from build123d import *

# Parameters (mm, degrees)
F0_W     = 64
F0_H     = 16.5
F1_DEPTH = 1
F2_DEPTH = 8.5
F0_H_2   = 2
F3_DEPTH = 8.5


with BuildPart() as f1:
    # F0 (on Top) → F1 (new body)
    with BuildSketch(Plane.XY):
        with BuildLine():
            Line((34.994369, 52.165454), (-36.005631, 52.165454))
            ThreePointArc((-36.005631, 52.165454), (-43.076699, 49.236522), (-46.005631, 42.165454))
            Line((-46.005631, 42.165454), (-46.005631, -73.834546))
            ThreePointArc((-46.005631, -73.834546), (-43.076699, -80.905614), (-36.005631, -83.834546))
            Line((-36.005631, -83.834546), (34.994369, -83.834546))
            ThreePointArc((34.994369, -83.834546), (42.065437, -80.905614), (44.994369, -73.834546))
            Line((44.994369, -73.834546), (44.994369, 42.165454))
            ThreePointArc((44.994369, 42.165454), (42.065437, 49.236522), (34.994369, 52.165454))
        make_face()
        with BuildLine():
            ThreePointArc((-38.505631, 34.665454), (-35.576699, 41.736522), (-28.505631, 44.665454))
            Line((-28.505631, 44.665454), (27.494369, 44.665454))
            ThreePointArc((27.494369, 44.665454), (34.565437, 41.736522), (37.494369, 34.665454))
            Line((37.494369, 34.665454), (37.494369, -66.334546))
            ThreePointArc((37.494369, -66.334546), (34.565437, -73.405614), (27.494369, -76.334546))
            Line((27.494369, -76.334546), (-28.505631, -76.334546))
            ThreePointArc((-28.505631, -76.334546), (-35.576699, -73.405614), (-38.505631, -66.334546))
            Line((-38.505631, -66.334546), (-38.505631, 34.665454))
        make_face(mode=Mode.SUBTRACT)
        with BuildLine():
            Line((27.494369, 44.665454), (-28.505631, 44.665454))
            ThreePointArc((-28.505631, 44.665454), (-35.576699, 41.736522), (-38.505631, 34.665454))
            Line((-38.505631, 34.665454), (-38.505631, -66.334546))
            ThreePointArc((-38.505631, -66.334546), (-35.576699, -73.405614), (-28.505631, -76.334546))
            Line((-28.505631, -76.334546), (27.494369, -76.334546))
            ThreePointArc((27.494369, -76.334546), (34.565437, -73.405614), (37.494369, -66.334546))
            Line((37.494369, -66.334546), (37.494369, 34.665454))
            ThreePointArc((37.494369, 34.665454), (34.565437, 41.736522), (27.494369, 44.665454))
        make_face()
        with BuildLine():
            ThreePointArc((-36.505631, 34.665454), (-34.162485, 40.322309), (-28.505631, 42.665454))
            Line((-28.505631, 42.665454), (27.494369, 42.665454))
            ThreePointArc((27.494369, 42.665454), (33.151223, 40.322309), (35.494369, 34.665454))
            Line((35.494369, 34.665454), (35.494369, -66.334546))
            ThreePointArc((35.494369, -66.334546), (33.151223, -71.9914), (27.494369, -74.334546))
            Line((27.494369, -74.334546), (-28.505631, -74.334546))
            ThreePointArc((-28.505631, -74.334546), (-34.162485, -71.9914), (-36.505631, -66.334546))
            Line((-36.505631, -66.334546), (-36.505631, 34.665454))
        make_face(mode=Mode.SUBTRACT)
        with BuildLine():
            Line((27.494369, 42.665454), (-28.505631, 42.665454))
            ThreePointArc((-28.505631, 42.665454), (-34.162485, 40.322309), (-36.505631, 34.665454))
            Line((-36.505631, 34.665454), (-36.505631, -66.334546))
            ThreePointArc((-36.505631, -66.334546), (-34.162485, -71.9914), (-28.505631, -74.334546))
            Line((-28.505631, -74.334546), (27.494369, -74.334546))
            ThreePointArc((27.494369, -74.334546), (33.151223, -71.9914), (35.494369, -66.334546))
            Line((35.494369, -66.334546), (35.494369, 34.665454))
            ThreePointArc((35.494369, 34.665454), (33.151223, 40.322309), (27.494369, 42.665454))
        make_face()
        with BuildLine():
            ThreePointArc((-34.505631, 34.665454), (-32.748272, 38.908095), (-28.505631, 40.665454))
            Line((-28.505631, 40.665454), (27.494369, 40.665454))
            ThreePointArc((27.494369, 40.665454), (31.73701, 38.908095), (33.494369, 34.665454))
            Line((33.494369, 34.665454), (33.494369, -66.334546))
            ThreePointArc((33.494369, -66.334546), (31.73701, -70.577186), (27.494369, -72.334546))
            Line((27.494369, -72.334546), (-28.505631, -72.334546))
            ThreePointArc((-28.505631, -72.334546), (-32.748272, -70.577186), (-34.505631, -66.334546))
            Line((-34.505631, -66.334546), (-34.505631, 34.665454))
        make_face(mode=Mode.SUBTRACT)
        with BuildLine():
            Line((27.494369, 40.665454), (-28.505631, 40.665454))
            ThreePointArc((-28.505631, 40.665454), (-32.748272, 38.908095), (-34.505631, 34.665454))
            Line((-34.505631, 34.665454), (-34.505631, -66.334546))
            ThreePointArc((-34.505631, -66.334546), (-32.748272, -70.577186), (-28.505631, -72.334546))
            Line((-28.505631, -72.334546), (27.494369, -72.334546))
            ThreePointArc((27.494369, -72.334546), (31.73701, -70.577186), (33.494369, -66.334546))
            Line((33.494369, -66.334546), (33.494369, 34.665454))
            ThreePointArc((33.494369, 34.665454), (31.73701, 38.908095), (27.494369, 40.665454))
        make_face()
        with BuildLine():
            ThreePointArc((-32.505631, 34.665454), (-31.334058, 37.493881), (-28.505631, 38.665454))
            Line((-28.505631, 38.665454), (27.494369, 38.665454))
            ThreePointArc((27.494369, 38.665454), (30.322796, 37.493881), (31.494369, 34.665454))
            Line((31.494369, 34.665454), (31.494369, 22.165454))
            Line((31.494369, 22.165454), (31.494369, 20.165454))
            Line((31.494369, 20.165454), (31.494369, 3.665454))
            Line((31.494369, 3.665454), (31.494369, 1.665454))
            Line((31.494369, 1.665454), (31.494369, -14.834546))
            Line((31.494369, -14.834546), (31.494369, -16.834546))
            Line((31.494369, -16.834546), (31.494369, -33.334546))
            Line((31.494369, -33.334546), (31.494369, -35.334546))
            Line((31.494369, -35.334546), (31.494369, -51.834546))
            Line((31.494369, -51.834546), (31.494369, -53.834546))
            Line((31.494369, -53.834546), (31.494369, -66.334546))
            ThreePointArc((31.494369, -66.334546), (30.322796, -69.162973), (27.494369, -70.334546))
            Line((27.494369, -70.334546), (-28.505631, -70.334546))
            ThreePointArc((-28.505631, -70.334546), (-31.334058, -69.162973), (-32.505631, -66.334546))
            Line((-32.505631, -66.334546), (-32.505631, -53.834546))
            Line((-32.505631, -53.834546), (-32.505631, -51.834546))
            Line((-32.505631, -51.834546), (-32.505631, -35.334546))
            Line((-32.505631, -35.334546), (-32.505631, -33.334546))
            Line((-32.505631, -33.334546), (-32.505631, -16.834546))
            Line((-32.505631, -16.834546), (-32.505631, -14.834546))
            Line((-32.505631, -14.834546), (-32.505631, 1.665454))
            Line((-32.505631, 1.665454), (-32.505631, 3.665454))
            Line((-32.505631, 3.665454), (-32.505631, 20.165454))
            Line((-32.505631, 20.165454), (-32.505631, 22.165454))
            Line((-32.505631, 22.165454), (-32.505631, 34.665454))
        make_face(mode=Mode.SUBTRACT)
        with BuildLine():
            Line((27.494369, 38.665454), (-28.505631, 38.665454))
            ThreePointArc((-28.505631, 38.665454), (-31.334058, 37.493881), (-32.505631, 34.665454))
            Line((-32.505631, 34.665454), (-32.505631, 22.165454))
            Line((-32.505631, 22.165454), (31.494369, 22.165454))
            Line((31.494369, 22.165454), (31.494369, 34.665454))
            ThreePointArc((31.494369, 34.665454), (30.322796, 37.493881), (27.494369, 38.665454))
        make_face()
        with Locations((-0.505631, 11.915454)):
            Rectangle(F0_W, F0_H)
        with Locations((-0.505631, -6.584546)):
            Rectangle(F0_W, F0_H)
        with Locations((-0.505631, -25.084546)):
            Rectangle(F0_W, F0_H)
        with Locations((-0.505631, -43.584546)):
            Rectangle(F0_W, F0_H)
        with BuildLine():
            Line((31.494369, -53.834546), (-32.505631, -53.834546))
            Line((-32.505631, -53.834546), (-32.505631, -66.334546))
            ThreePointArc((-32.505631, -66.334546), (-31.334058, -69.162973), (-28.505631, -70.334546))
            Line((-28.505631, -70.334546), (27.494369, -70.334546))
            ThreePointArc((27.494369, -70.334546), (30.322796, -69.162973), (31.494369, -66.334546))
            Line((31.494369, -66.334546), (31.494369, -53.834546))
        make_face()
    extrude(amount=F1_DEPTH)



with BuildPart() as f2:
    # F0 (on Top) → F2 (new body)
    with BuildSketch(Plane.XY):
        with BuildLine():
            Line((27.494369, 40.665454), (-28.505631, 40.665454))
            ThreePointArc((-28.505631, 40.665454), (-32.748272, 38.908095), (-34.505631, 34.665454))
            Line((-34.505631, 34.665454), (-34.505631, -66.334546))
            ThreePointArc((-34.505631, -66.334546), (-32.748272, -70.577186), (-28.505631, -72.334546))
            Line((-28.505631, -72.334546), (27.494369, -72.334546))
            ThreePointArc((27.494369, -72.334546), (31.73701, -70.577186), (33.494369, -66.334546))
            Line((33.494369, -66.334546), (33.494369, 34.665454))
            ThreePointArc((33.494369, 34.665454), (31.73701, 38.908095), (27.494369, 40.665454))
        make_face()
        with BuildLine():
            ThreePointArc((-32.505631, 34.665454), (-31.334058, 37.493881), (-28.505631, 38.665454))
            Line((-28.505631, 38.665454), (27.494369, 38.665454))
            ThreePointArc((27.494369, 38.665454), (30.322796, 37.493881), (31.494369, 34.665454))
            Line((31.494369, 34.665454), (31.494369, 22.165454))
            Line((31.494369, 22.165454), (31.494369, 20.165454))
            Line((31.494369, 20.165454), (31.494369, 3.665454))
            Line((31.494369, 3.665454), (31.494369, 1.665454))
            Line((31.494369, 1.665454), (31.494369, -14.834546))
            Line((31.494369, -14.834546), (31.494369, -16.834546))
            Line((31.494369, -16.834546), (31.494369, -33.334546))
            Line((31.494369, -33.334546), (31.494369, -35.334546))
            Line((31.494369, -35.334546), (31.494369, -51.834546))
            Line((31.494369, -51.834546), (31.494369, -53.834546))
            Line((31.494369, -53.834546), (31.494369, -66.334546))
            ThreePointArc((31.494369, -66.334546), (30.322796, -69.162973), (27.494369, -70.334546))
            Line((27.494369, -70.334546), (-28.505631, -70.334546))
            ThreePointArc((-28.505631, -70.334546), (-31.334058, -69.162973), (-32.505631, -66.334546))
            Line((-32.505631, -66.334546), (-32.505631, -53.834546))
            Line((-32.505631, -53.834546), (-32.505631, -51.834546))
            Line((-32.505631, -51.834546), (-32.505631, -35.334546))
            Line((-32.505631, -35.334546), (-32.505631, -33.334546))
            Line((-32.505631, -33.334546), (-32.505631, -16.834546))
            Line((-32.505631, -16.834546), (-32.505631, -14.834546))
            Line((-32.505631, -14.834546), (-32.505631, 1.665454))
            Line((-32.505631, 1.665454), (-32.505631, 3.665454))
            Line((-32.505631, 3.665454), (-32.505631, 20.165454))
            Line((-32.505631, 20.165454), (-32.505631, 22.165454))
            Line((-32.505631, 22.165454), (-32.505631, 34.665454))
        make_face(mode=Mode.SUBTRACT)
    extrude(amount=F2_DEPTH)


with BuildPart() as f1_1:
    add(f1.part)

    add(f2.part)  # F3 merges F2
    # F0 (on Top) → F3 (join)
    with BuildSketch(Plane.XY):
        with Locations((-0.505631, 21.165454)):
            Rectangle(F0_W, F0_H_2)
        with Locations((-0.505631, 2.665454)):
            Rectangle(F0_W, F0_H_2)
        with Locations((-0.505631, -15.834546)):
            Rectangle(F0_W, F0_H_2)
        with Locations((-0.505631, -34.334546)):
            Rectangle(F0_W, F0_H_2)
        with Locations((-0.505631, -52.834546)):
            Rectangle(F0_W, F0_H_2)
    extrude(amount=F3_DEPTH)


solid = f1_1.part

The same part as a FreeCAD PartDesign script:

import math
import FreeCAD as App
import Part
import Sketcher
Q = App.Units.Quantity

doc = App.newDocument("Part")
params = doc.addObject("Spreadsheet::Sheet", "Params")
for row, (alias, value) in enumerate([
    ("sketch1_radius", "9.999999 mm"),
    ("sketch1_width", "71 mm"),
    ("sketch1_width2", "64 mm"),
    ("sketch1_height", "116 mm"),
    ("sketch1_height2", "2 mm"),
    ("pad1_length", "1 mm"),
    ("sketch2_radius", "5.999999 mm"),
    ("sketch2_radius2", "4 mm"),
    ("sketch2_width", "56 mm"),
    ("sketch2_height", "101 mm"),
    ("pad2_length", "8.5 mm"),
    ("sketch3_width", "64 mm"),
    ("sketch3_height", "2 mm"),
    ("pad3_length", "8.5 mm"),
], start=1):
    params.set(f"A{row}", alias)
    params.set(f"B{row}", "=" + value)
    params.setAlias(f"B{row}", alias)

body = doc.addObject("PartDesign::Body", "Body")

# Sketch on XY plane
sketch1 = doc.addObject("Sketcher::SketchObject", "Sketch")
body.addObject(sketch1)
sketch1.AttachmentSupport = (doc.XY_Plane, [""])
sketch1.MapMode = "FlatFace"
sketch1.addGeometry(Part.LineSegment(App.Vector(34.994369, 52.165454, 0), App.Vector(-36.005631, 52.165454, 0)), False)
sketch1.addGeometry(Part.ArcOfCircle(Part.Circle(App.Vector(-36.005632, 42.165455, 0), App.Vector(0, 0, 1), 9.999999), math.radians(89.999996), math.radians(180.000004)), False)
sketch1.addGeometry(Part.LineSegment(App.Vector(-46.005631, 42.165454, 0), App.Vector(-46.005631, -73.834546, 0)), False)
sketch1.addGeometry(Part.ArcOfCircle(Part.Circle(App.Vector(-36.005632, -73.834547, 0), App.Vector(0, 0, 1), 9.999999), math.radians(179.999996), math.radians(270.000004)), False)
sketch1.addGeometry(Part.LineSegment(App.Vector(-36.005631, -83.834546, 0), App.Vector(34.994369, -83.834546, 0)), False)
sketch1.addGeometry(Part.ArcOfCircle(Part.Circle(App.Vector(34.99437, -73.834547, 0), App.Vector(0, 0, 1), 9.999999), math.radians(-90.000004), math.radians(0.000004)), False)
sketch1.addGeometry(Part.LineSegment(App.Vector(44.994369, -73.834546, 0), App.Vector(44.994369, 42.165454, 0)), False)
sketch1.addGeometry(Part.ArcOfCircle(Part.Circle(App.Vector(34.99437, 42.165455, 0), App.Vector(0, 0, 1), 9.999999), math.radians(-0.000004), math.radians(90.000004)), False)
sketch1.addGeometry(Part.LineSegment(App.Vector(-32.505631, -53.834546, 0), App.Vector(-32.505631, -51.834546, 0)), False)
sketch1.addGeometry(Part.LineSegment(App.Vector(-32.505631, -51.834546, 0), App.Vector(31.494369, -51.834546, 0)), False)
sketch1.addGeometry(Part.LineSegment(App.Vector(31.494369, -51.834546, 0), App.Vector(31.494369, -53.834546, 0)), False)
sketch1.addGeometry(Part.LineSegment(App.Vector(31.494369, -53.834546, 0), App.Vector(-32.505631, -53.834546, 0)), False)
sketch1.addGeometry(Part.LineSegment(App.Vector(-32.505631, -35.334546, 0), App.Vector(-32.505631, -33.334546, 0)), False)
sketch1.addGeometry(Part.LineSegment(App.Vector(-32.505631, -33.334546, 0), App.Vector(31.494369, -33.334546, 0)), False)
sketch1.addGeometry(Part.LineSegment(App.Vector(31.494369, -33.334546, 0), App.Vector(31.494369, -35.334546, 0)), False)
sketch1.addGeometry(Part.LineSegment(App.Vector(31.494369, -35.334546, 0), App.Vector(-32.505631, -35.334546, 0)), False)
sketch1.addGeometry(Part.LineSegment(App.Vector(-32.505631, -16.834546, 0), App.Vector(-32.505631, -14.834546, 0)), False)
sketch1.addGeometry(Part.LineSegment(App.Vector(-32.505631, -14.834546, 0), App.Vector(31.494369, -14.834546, 0)), False)
sketch1.addGeometry(Part.LineSegment(App.Vector(31.494369, -14.834546, 0), App.Vector(31.494369, -16.834546, 0)), False)
sketch1.addGeometry(Part.LineSegment(App.Vector(31.494369, -16.834546, 0), App.Vector(-32.505631, -16.834546, 0)), False)
sketch1.addGeometry(Part.LineSegment(App.Vector(-32.505631, 1.665454, 0), App.Vector(-32.505631, 3.665454, 0)), False)
sketch1.addGeometry(Part.LineSegment(App.Vector(-32.505631, 3.665454, 0), App.Vector(31.494369, 3.665454, 0)), False)
sketch1.addGeometry(Part.LineSegment(App.Vector(31.494369, 3.665454, 0), App.Vector(31.494369, 1.665454, 0)), False)
sketch1.addGeometry(Part.LineSegment(App.Vector(31.494369, 1.665454, 0), App.Vector(-32.505631, 1.665454, 0)), False)
sketch1.addGeometry(Part.LineSegment(App.Vector(-32.505631, 20.165454, 0), App.Vector(-32.505631, 22.165454, 0)), False)
sketch1.addGeometry(Part.LineSegment(App.Vector(-32.505631, 22.165454, 0), App.Vector(31.494369, 22.165454, 0)), False)
sketch1.addGeometry(Part.LineSegment(App.Vector(31.494369, 22.165454, 0), App.Vector(31.494369, 20.165454, 0)), False)
sketch1.addGeometry(Part.LineSegment(App.Vector(31.494369, 20.165454, 0), App.Vector(-32.505631, 20.165454, 0)), False)
sketch1.addConstraint(Sketcher.Constraint("Tangent", 0, 2, 1, 1))
sketch1.addConstraint(Sketcher.Constraint("Tangent", 1, 2, 2, 1))
sketch1.addConstraint(Sketcher.Constraint("Tangent", 2, 2, 3, 1))
sketch1.addConstraint(Sketcher.Constraint("Tangent", 3, 2, 4, 1))
sketch1.addConstraint(Sketcher.Constraint("Tangent", 4, 2, 5, 1))
sketch1.addConstraint(Sketcher.Constraint("Tangent", 5, 2, 6, 1))
sketch1.addConstraint(Sketcher.Constraint("Tangent", 6, 2, 7, 1))
sketch1.addConstraint(Sketcher.Constraint("Tangent", 7, 2, 0, 1))
sketch1.addConstraint(Sketcher.Constraint("Coincident", 8, 2, 9, 1))
sketch1.addConstraint(Sketcher.Constraint("Coincident", 9, 2, 10, 1))
sketch1.addConstraint(Sketcher.Constraint("Coincident", 10, 2, 11, 1))
sketch1.addConstraint(Sketcher.Constraint("Coincident", 11, 2, 8, 1))
sketch1.addConstraint(Sketcher.Constraint("Coincident", 12, 2, 13, 1))
sketch1.addConstraint(Sketcher.Constraint("Coincident", 13, 2, 14, 1))
sketch1.addConstraint(Sketcher.Constraint("Coincident", 14, 2, 15, 1))
sketch1.addConstraint(Sketcher.Constraint("Coincident", 15, 2, 12, 1))
sketch1.addConstraint(Sketcher.Constraint("Coincident", 16, 2, 17, 1))
sketch1.addConstraint(Sketcher.Constraint("Coincident", 17, 2, 18, 1))
sketch1.addConstraint(Sketcher.Constraint("Coincident", 18, 2, 19, 1))
sketch1.addConstraint(Sketcher.Constraint("Coincident", 19, 2, 16, 1))
sketch1.addConstraint(Sketcher.Constraint("Coincident", 20, 2, 21, 1))
sketch1.addConstraint(Sketcher.Constraint("Coincident", 21, 2, 22, 1))
sketch1.addConstraint(Sketcher.Constraint("Coincident", 22, 2, 23, 1))
sketch1.addConstraint(Sketcher.Constraint("Coincident", 23, 2, 20, 1))
sketch1.addConstraint(Sketcher.Constraint("Coincident", 24, 2, 25, 1))
sketch1.addConstraint(Sketcher.Constraint("Coincident", 25, 2, 26, 1))
sketch1.addConstraint(Sketcher.Constraint("Coincident", 26, 2, 27, 1))
sketch1.addConstraint(Sketcher.Constraint("Coincident", 27, 2, 24, 1))
sketch1.addConstraint(Sketcher.Constraint("Horizontal", 0))
sketch1.addConstraint(Sketcher.Constraint("Vertical", 2))
sketch1.addConstraint(Sketcher.Constraint("Horizontal", 4))
sketch1.addConstraint(Sketcher.Constraint("Vertical", 6))
sketch1.addConstraint(Sketcher.Constraint("Vertical", 8))
sketch1.addConstraint(Sketcher.Constraint("Horizontal", 9))
sketch1.addConstraint(Sketcher.Constraint("Vertical", 10))
sketch1.addConstraint(Sketcher.Constraint("Horizontal", 11))
sketch1.addConstraint(Sketcher.Constraint("Vertical", 12))
sketch1.addConstraint(Sketcher.Constraint("Horizontal", 13))
sketch1.addConstraint(Sketcher.Constraint("Vertical", 14))
sketch1.addConstraint(Sketcher.Constraint("Horizontal", 15))
sketch1.addConstraint(Sketcher.Constraint("Vertical", 16))
sketch1.addConstraint(Sketcher.Constraint("Horizontal", 17))
sketch1.addConstraint(Sketcher.Constraint("Vertical", 18))
sketch1.addConstraint(Sketcher.Constraint("Horizontal", 19))
sketch1.addConstraint(Sketcher.Constraint("Vertical", 20))
sketch1.addConstraint(Sketcher.Constraint("Horizontal", 21))
sketch1.addConstraint(Sketcher.Constraint("Vertical", 22))
sketch1.addConstraint(Sketcher.Constraint("Horizontal", 23))
sketch1.addConstraint(Sketcher.Constraint("Vertical", 24))
sketch1.addConstraint(Sketcher.Constraint("Horizontal", 25))
sketch1.addConstraint(Sketcher.Constraint("Vertical", 26))
sketch1.addConstraint(Sketcher.Constraint("Horizontal", 27))
sketch1.addConstraint(Sketcher.Constraint("Equal", 1, 3))
sketch1.addConstraint(Sketcher.Constraint("Equal", 3, 5))
sketch1.addConstraint(Sketcher.Constraint("Equal", 5, 7))
sketch1.addConstraint(Sketcher.Constraint("Vertical", 11, 2, 12, 2))
sketch1.addConstraint(Sketcher.Constraint("Vertical", 10, 2, 13, 2))
sketch1.addConstraint(Sketcher.Constraint("Vertical", 15, 2, 16, 2))
sketch1.addConstraint(Sketcher.Constraint("Vertical", 14, 2, 17, 2))
sketch1.addConstraint(Sketcher.Constraint("Vertical", 19, 2, 20, 2))
sketch1.addConstraint(Sketcher.Constraint("Vertical", 18, 2, 21, 2))
sketch1.addConstraint(Sketcher.Constraint("Vertical", 23, 2, 24, 2))
sketch1.addConstraint(Sketcher.Constraint("Vertical", 22, 2, 25, 2))
sketch1.addConstraint(Sketcher.Constraint("Equal", 10, 12))
sketch1.addConstraint(Sketcher.Constraint("Equal", 14, 16))
sketch1.addConstraint(Sketcher.Constraint("Equal", 18, 20))
sketch1.addConstraint(Sketcher.Constraint("Equal", 22, 24))
sketch1.addConstraint(Sketcher.Constraint("Radius", 1, Q("9.999999 mm")))
sketch1.addConstraint(Sketcher.Constraint("DistanceX", 0, 2, 0, 1, Q("71 mm")))
sketch1.addConstraint(Sketcher.Constraint("DistanceX", 9, 1, 9, 2, Q("64 mm")))
sketch1.addConstraint(Sketcher.Constraint("DistanceY", 2, 2, 2, 1, Q("116 mm")))
sketch1.addConstraint(Sketcher.Constraint("DistanceY", 8, 1, 8, 2, Q("2 mm")))
sketch1.addConstraint(Sketcher.Constraint("DistanceY", 3, 3, 8, 2, Q("22.000001 mm")))
sketch1.addConstraint(Sketcher.Constraint("DistanceY", 8, 2, 16, 2, Q("37 mm")))
sketch1.addConstraint(Sketcher.Constraint("DistanceY", 12, 2, 20, 2, Q("37 mm")))
sketch1.addConstraint(Sketcher.Constraint("DistanceY", 24, 2, 1, 3, Q("20.000001 mm")))
sketch1.addConstraint(Sketcher.Constraint("DistanceX", 3, 3, 8, 2, Q("3.500001 mm")))
sketch1.addConstraint(Sketcher.Constraint("DistanceY", 8, 2, 12, 2, Q("18.5 mm")))
sketch1.addConstraint(Sketcher.Constraint("DistanceX", 1, 3, -1, 1, Q("36.005632 mm")))
sketch1.addConstraint(Sketcher.Constraint("DistanceY", -1, 1, 1, 3, Q("42.165455 mm")))
sketch1.setExpression("Constraints[67]", "Params.sketch1_radius")
sketch1.setExpression("Constraints[68]", "Params.sketch1_width")
sketch1.setExpression("Constraints[69]", "Params.sketch1_width2")
sketch1.setExpression("Constraints[70]", "Params.sketch1_height")
sketch1.setExpression("Constraints[71]", "Params.sketch1_height2")
pad1 = doc.addObject("PartDesign::Pad", "Pad")
body.addObject(pad1)
pad1.Profile = sketch1
pad1.setExpression("Length", "Params.pad1_length")
body2 = doc.addObject("PartDesign::Body", "Body001")

# Sketch on XY plane
sketch2 = doc.addObject("Sketcher::SketchObject", "Sketch001")
body2.addObject(sketch2)
sketch2.AttachmentSupport = (doc.getObject("XY_Plane001"), [""])
sketch2.MapMode = "FlatFace"
sketch2.addGeometry(Part.LineSegment(App.Vector(27.494369, 40.665454, 0), App.Vector(-28.505631, 40.665454, 0)), False)
sketch2.addGeometry(Part.ArcOfCircle(Part.Circle(App.Vector(-28.505632, 34.665455, 0), App.Vector(0, 0, 1), 5.999999), math.radians(89.99999), math.radians(180.00001)), False)
sketch2.addGeometry(Part.LineSegment(App.Vector(-34.505631, 34.665454, 0), App.Vector(-34.505631, -66.334546, 0)), False)
sketch2.addGeometry(Part.ArcOfCircle(Part.Circle(App.Vector(-28.50563, -66.334545, 0), App.Vector(0, 0, 1), 6.000001), math.radians(-179.999994), math.radians(-90.000006)), False)
sketch2.addGeometry(Part.LineSegment(App.Vector(-28.505631, -72.334546, 0), App.Vector(27.494369, -72.334546, 0)), False)
sketch2.addGeometry(Part.ArcOfCircle(Part.Circle(App.Vector(27.494368, -66.334545, 0), App.Vector(0, 0, 1), 6.000001), math.radians(-89.999994), math.radians(-0.000006)), False)
sketch2.addGeometry(Part.LineSegment(App.Vector(33.494369, -66.334546, 0), App.Vector(33.494369, 34.665454, 0)), False)
sketch2.addGeometry(Part.ArcOfCircle(Part.Circle(App.Vector(27.49437, 34.665455, 0), App.Vector(0, 0, 1), 5.999999), math.radians(-0.00001), math.radians(90.00001)), False)
sketch2.addGeometry(Part.LineSegment(App.Vector(-32.505631, -66.334546, 0), App.Vector(-32.505631, 34.665454, 0)), False)
sketch2.addGeometry(Part.ArcOfCircle(Part.Circle(App.Vector(-28.505631, 34.665454, 0), App.Vector(0, 0, 1), 4), math.radians(90.000006), math.radians(179.999994)), False)
sketch2.addGeometry(Part.LineSegment(App.Vector(-28.505631, 38.665454, 0), App.Vector(27.494369, 38.665454, 0)), False)
sketch2.addGeometry(Part.ArcOfCircle(Part.Circle(App.Vector(27.494369, 34.665454, 0), App.Vector(0, 0, 1), 4), math.radians(0.000006), math.radians(89.999994)), False)
sketch2.addGeometry(Part.LineSegment(App.Vector(31.494369, 34.665454, 0), App.Vector(31.494369, -66.334546, 0)), False)
sketch2.addGeometry(Part.ArcOfCircle(Part.Circle(App.Vector(27.494369, -66.334546, 0), App.Vector(0, 0, 1), 4), math.radians(-89.999994), math.radians(-0.000006)), False)
sketch2.addGeometry(Part.LineSegment(App.Vector(27.494369, -70.334546, 0), App.Vector(-28.505631, -70.334546, 0)), False)
sketch2.addGeometry(Part.ArcOfCircle(Part.Circle(App.Vector(-28.505631, -66.334546, 0), App.Vector(0, 0, 1), 4), math.radians(-179.999994), math.radians(-90.000006)), False)
sketch2.addConstraint(Sketcher.Constraint("Tangent", 0, 2, 1, 1))
sketch2.addConstraint(Sketcher.Constraint("Tangent", 1, 2, 2, 1))
sketch2.addConstraint(Sketcher.Constraint("Tangent", 2, 2, 3, 1))
sketch2.addConstraint(Sketcher.Constraint("Tangent", 3, 2, 4, 1))
sketch2.addConstraint(Sketcher.Constraint("Tangent", 4, 2, 5, 1))
sketch2.addConstraint(Sketcher.Constraint("Tangent", 5, 2, 6, 1))
sketch2.addConstraint(Sketcher.Constraint("Tangent", 6, 2, 7, 1))
sketch2.addConstraint(Sketcher.Constraint("Tangent", 7, 2, 0, 1))
sketch2.addConstraint(Sketcher.Constraint("Tangent", 8, 2, 9, 2))
sketch2.addConstraint(Sketcher.Constraint("Tangent", 9, 1, 10, 1))
sketch2.addConstraint(Sketcher.Constraint("Tangent", 10, 2, 11, 2))
sketch2.addConstraint(Sketcher.Constraint("Tangent", 11, 1, 12, 1))
sketch2.addConstraint(Sketcher.Constraint("Tangent", 12, 2, 13, 2))
sketch2.addConstraint(Sketcher.Constraint("Tangent", 13, 1, 14, 1))
sketch2.addConstraint(Sketcher.Constraint("Tangent", 14, 2, 15, 2))
sketch2.addConstraint(Sketcher.Constraint("Tangent", 15, 1, 8, 1))
sketch2.addConstraint(Sketcher.Constraint("Horizontal", 0))
sketch2.addConstraint(Sketcher.Constraint("Vertical", 2))
sketch2.addConstraint(Sketcher.Constraint("Horizontal", 4))
sketch2.addConstraint(Sketcher.Constraint("Vertical", 6))
sketch2.addConstraint(Sketcher.Constraint("Vertical", 8))
sketch2.addConstraint(Sketcher.Constraint("Horizontal", 10))
sketch2.addConstraint(Sketcher.Constraint("Vertical", 12))
sketch2.addConstraint(Sketcher.Constraint("Horizontal", 14))
sketch2.addConstraint(Sketcher.Constraint("Coincident", 9, 3, 1, 3))
sketch2.addConstraint(Sketcher.Constraint("Coincident", 11, 3, 7, 3))
sketch2.addConstraint(Sketcher.Constraint("Coincident", 13, 3, 5, 3))
sketch2.addConstraint(Sketcher.Constraint("Equal", 1, 3))
sketch2.addConstraint(Sketcher.Constraint("Equal", 3, 5))
sketch2.addConstraint(Sketcher.Constraint("Equal", 5, 7))
sketch2.addConstraint(Sketcher.Constraint("Equal", 13, 15))
sketch2.addConstraint(Sketcher.Constraint("Radius", 1, Q("5.999999 mm")))
sketch2.addConstraint(Sketcher.Constraint("Radius", 9, Q("4 mm")))
sketch2.addConstraint(Sketcher.Constraint("DistanceX", 0, 2, 0, 1, Q("56 mm")))
sketch2.addConstraint(Sketcher.Constraint("DistanceY", 2, 2, 2, 1, Q("101 mm")))
sketch2.addConstraint(Sketcher.Constraint("DistanceX", 3, 3, -1, 1, Q("28.50563 mm")))
sketch2.addConstraint(Sketcher.Constraint("DistanceY", -1, 1, 1, 3, Q("34.665455 mm")))
sketch2.setExpression("Constraints[31]", "Params.sketch2_radius")
sketch2.setExpression("Constraints[32]", "Params.sketch2_radius2")
sketch2.setExpression("Constraints[33]", "Params.sketch2_width")
sketch2.setExpression("Constraints[34]", "Params.sketch2_height")
pad2 = doc.addObject("PartDesign::Pad", "Pad001")
body2.addObject(pad2)
pad2.Profile = sketch2
pad2.setExpression("Length", "Params.pad2_length")
doc.recompute()

boolean = doc.addObject("PartDesign::Boolean", "Boolean")
body.addObject(boolean)
boolean.Type = "Fuse"
boolean.addObjects([body2])

# Sketch on XY plane
sketch3 = doc.addObject("Sketcher::SketchObject", "Sketch002")
body.addObject(sketch3)
sketch3.AttachmentSupport = (doc.XY_Plane, [""])
sketch3.MapMode = "FlatFace"
sketch3.addGeometry(Part.LineSegment(App.Vector(-32.505631, 22.165454, 0), App.Vector(-32.505631, 20.165454, 0)), False)
sketch3.addGeometry(Part.LineSegment(App.Vector(-32.505631, 20.165454, 0), App.Vector(31.494369, 20.165454, 0)), False)
sketch3.addGeometry(Part.LineSegment(App.Vector(31.494369, 20.165454, 0), App.Vector(31.494369, 22.165454, 0)), False)
sketch3.addGeometry(Part.LineSegment(App.Vector(31.494369, 22.165454, 0), App.Vector(-32.505631, 22.165454, 0)), False)
sketch3.addGeometry(Part.LineSegment(App.Vector(-32.505631, 3.665454, 0), App.Vector(-32.505631, 1.665454, 0)), False)
sketch3.addGeometry(Part.LineSegment(App.Vector(-32.505631, 1.665454, 0), App.Vector(31.494369, 1.665454, 0)), False)
sketch3.addGeometry(Part.LineSegment(App.Vector(31.494369, 1.665454, 0), App.Vector(31.494369, 3.665454, 0)), False)
sketch3.addGeometry(Part.LineSegment(App.Vector(31.494369, 3.665454, 0), App.Vector(-32.505631, 3.665454, 0)), False)
sketch3.addGeometry(Part.LineSegment(App.Vector(-32.505631, -14.834546, 0), App.Vector(-32.505631, -16.834546, 0)), False)
sketch3.addGeometry(Part.LineSegment(App.Vector(-32.505631, -16.834546, 0), App.Vector(31.494369, -16.834546, 0)), False)
sketch3.addGeometry(Part.LineSegment(App.Vector(31.494369, -16.834546, 0), App.Vector(31.494369, -14.834546, 0)), False)
sketch3.addGeometry(Part.LineSegment(App.Vector(31.494369, -14.834546, 0), App.Vector(-32.505631, -14.834546, 0)), False)
sketch3.addGeometry(Part.LineSegment(App.Vector(-32.505631, -33.334546, 0), App.Vector(-32.505631, -35.334546, 0)), False)
sketch3.addGeometry(Part.LineSegment(App.Vector(-32.505631, -35.334546, 0), App.Vector(31.494369, -35.334546, 0)), False)
sketch3.addGeometry(Part.LineSegment(App.Vector(31.494369, -35.334546, 0), App.Vector(31.494369, -33.334546, 0)), False)
sketch3.addGeometry(Part.LineSegment(App.Vector(31.494369, -33.334546, 0), App.Vector(-32.505631, -33.334546, 0)), False)
sketch3.addGeometry(Part.LineSegment(App.Vector(-32.505631, -51.834546, 0), App.Vector(-32.505631, -53.834546, 0)), False)
sketch3.addGeometry(Part.LineSegment(App.Vector(-32.505631, -53.834546, 0), App.Vector(31.494369, -53.834546, 0)), False)
sketch3.addGeometry(Part.LineSegment(App.Vector(31.494369, -53.834546, 0), App.Vector(31.494369, -51.834546, 0)), False)
sketch3.addGeometry(Part.LineSegment(App.Vector(31.494369, -51.834546, 0), App.Vector(-32.505631, -51.834546, 0)), False)
sketch3.addConstraint(Sketcher.Constraint("Coincident", 0, 2, 1, 1))
sketch3.addConstraint(Sketcher.Constraint("Coincident", 1, 2, 2, 1))
sketch3.addConstraint(Sketcher.Constraint("Coincident", 2, 2, 3, 1))
sketch3.addConstraint(Sketcher.Constraint("Coincident", 3, 2, 0, 1))
sketch3.addConstraint(Sketcher.Constraint("Coincident", 4, 2, 5, 1))
sketch3.addConstraint(Sketcher.Constraint("Coincident", 5, 2, 6, 1))
sketch3.addConstraint(Sketcher.Constraint("Coincident", 6, 2, 7, 1))
sketch3.addConstraint(Sketcher.Constraint("Coincident", 7, 2, 4, 1))
sketch3.addConstraint(Sketcher.Constraint("Coincident", 8, 2, 9, 1))
sketch3.addConstraint(Sketcher.Constraint("Coincident", 9, 2, 10, 1))
sketch3.addConstraint(Sketcher.Constraint("Coincident", 10, 2, 11, 1))
sketch3.addConstraint(Sketcher.Constraint("Coincident", 11, 2, 8, 1))
sketch3.addConstraint(Sketcher.Constraint("Coincident", 12, 2, 13, 1))
sketch3.addConstraint(Sketcher.Constraint("Coincident", 13, 2, 14, 1))
sketch3.addConstraint(Sketcher.Constraint("Coincident", 14, 2, 15, 1))
sketch3.addConstraint(Sketcher.Constraint("Coincident", 15, 2, 12, 1))
sketch3.addConstraint(Sketcher.Constraint("Coincident", 16, 2, 17, 1))
sketch3.addConstraint(Sketcher.Constraint("Coincident", 17, 2, 18, 1))
sketch3.addConstraint(Sketcher.Constraint("Coincident", 18, 2, 19, 1))
sketch3.addConstraint(Sketcher.Constraint("Coincident", 19, 2, 16, 1))
sketch3.addConstraint(Sketcher.Constraint("Vertical", 0))
sketch3.addConstraint(Sketcher.Constraint("Horizontal", 1))
sketch3.addConstraint(Sketcher.Constraint("Vertical", 2))
sketch3.addConstraint(Sketcher.Constraint("Horizontal", 3))
sketch3.addConstraint(Sketcher.Constraint("Vertical", 4))
sketch3.addConstraint(Sketcher.Constraint("Horizontal", 5))
sketch3.addConstraint(Sketcher.Constraint("Vertical", 6))
sketch3.addConstraint(Sketcher.Constraint("Horizontal", 7))
sketch3.addConstraint(Sketcher.Constraint("Vertical", 8))
sketch3.addConstraint(Sketcher.Constraint("Horizontal", 9))
sketch3.addConstraint(Sketcher.Constraint("Vertical", 10))
sketch3.addConstraint(Sketcher.Constraint("Horizontal", 11))
sketch3.addConstraint(Sketcher.Constraint("Vertical", 12))
sketch3.addConstraint(Sketcher.Constraint("Horizontal", 13))
sketch3.addConstraint(Sketcher.Constraint("Vertical", 14))
sketch3.addConstraint(Sketcher.Constraint("Horizontal", 15))
sketch3.addConstraint(Sketcher.Constraint("Vertical", 16))
sketch3.addConstraint(Sketcher.Constraint("Horizontal", 17))
sketch3.addConstraint(Sketcher.Constraint("Vertical", 18))
sketch3.addConstraint(Sketcher.Constraint("Horizontal", 19))
sketch3.addConstraint(Sketcher.Constraint("Vertical", 3, 2, 4, 2))
sketch3.addConstraint(Sketcher.Constraint("Vertical", 2, 2, 5, 2))
sketch3.addConstraint(Sketcher.Constraint("Vertical", 7, 2, 8, 2))
sketch3.addConstraint(Sketcher.Constraint("Vertical", 6, 2, 9, 2))
sketch3.addConstraint(Sketcher.Constraint("Vertical", 11, 2, 12, 2))
sketch3.addConstraint(Sketcher.Constraint("Vertical", 10, 2, 13, 2))
sketch3.addConstraint(Sketcher.Constraint("Vertical", 15, 2, 16, 2))
sketch3.addConstraint(Sketcher.Constraint("Vertical", 14, 2, 17, 2))
sketch3.addConstraint(Sketcher.Constraint("Equal", 2, 4))
sketch3.addConstraint(Sketcher.Constraint("Equal", 6, 8))
sketch3.addConstraint(Sketcher.Constraint("Equal", 10, 12))
sketch3.addConstraint(Sketcher.Constraint("Equal", 14, 16))
sketch3.addConstraint(Sketcher.Constraint("DistanceX", 1, 1, 1, 2, Q("64 mm")))
sketch3.addConstraint(Sketcher.Constraint("DistanceY", 0, 2, 0, 1, Q("2 mm")))
sketch3.addConstraint(Sketcher.Constraint("DistanceY", 8, 2, 0, 2, Q("37 mm")))
sketch3.addConstraint(Sketcher.Constraint("DistanceY", 12, 2, 4, 2, Q("37 mm")))
sketch3.addConstraint(Sketcher.Constraint("DistanceY", 16, 2, 8, 2, Q("37 mm")))
sketch3.addConstraint(Sketcher.Constraint("DistanceY", 4, 2, 0, 2, Q("18.5 mm")))
sketch3.addConstraint(Sketcher.Constraint("DistanceX", 0, 2, -1, 1, Q("32.505631 mm")))
sketch3.addConstraint(Sketcher.Constraint("DistanceY", -1, 1, 0, 2, Q("20.165454 mm")))
sketch3.setExpression("Constraints[52]", "Params.sketch3_width")
sketch3.setExpression("Constraints[53]", "Params.sketch3_height")
pad3 = doc.addObject("PartDesign::Pad", "Pad002")
body.addObject(pad3)
pad3.Profile = sketch3
pad3.setExpression("Length", "Params.pad3_length")

doc.recompute()
